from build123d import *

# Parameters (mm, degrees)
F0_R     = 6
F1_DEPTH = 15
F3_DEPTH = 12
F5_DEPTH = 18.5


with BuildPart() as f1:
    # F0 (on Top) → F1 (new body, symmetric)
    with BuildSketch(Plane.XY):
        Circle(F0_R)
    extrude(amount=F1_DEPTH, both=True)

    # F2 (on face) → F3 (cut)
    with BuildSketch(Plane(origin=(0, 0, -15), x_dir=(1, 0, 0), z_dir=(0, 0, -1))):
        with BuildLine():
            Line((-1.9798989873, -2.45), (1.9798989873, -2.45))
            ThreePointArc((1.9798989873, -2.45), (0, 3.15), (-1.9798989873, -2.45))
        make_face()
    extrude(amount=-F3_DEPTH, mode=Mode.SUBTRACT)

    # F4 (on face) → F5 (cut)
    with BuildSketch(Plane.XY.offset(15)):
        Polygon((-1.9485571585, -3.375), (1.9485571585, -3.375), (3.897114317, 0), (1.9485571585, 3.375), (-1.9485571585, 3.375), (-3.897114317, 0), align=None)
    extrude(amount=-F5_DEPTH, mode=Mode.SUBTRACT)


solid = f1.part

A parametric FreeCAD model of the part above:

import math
import FreeCAD as App
import Part
import Sketcher
from FreeCAD import Vector
Q = App.Units.Quantity


def add_polygon(sketch, points):
    """Adds a closed chain of lines whose ends are joined by coincident constraints."""
    first, n = sketch.GeometryCount, len(points)
    for a, b in zip(points, points[1:] + points[:1]):
        sketch.addGeometry(Part.LineSegment(App.Vector(*a, 0), App.Vector(*b, 0)), False)
    for i in range(n):
        sketch.addConstraint(Sketcher.Constraint("Coincident", first + i, 2, first + (i + 1) % n, 1))

doc = App.newDocument("Part")
body = doc.addObject("PartDesign::Body", "Body")

# Sketch on XY plane
sketch1 = body.newObject("Sketcher::SketchObject", "Sketch")
sketch1.AttachmentSupport = (doc.getObject("XY_Plane"), [""])
sketch1.MapMode = "FlatFace"
sketch1.addGeometry(Part.Circle(Vector(0, 0, 0), Vector(0, 0, 1), 6), False)
sketch1.addConstraint(Sketcher.Constraint("Coincident", 0, 3, -1, 1))
sketch1.addConstraint(Sketcher.Constraint("Diameter", 0, 12.0))
pad1 = body.newObject("PartDesign::Pad", "Pad")
pad1.Profile = sketch1
pad1.Length = 30
pad1.Midplane = True

# Sketch on XY plane
sketch2 = body.newObject("Sketcher::SketchObject", "Sketch001")
sketch2.AttachmentSupport = (doc.getObject("XY_Plane"), [""])
sketch2.MapMode = "FlatFace"
sketch2.AttachmentOffset = App.Placement(Vector(0, 0, -15), App.Rotation())
sketch2.addGeometry(Part.LineSegment(Vector(-1.979899, 2.45, 0), Vector(1.979899, 2.45, 0)), False)
sketch2.addGeometry(Part.ArcOfCircle(Part.Circle(Vector(0, 0, 0), Vector(0, 0, 1), 3.15), math.radians(128.942441), math.radians(411.057559)), False)
sketch2.addConstraint(Sketcher.Constraint("Coincident", 0, 1, 1, 1))
sketch2.addConstraint(Sketcher.Constraint("Coincident", 1, 2, 0, 2))
sketch2.addConstraint(Sketcher.Constraint("Horizontal", 0))
sketch2.addConstraint(Sketcher.Constraint("Coincident", 1, 3, -1, 1))
sketch2.addConstraint(Sketcher.Constraint("Radius", 1, 3.15))
sketch2.addConstraint(Sketcher.Constraint("DistanceY", -1, 1, 0, 1, 2.45))
pocket1 = body.newObject("PartDesign::Pocket", "Pocket")
pocket1.Profile = sketch2
pocket1.Length = 12
pocket1.Reversed = True

# Sketch on XY plane
sketch3 = body.newObject("Sketcher::SketchObject", "Sketch002")
sketch3.AttachmentSupport = (doc.getObject("XY_Plane"), [""])
sketch3.MapMode = "FlatFace"
sketch3.AttachmentOffset = App.Placement(Vector(0, 0, 15), App.Rotation())
add_polygon(sketch3, [(-1.948557, -3.375), (1.948557, -3.375), (3.897114, 0), (1.948557, 3.375), (-1.948557, 3.375), (-3.897114, 0)])  # lines 0-5
sketch3.addConstraint(Sketcher.Constraint("Horizontal", 0))
sketch3.addConstraint(Sketcher.Constraint("Horizontal", 3))
sketch3.addConstraint(Sketcher.Constraint("Symmetric", 0, 2, 3, 2, -1, 1))
sketch3.addConstraint(Sketcher.Constraint("Symmetric", 1, 2, 4, 2, -1, 1))
sketch3.addConstraint(Sketcher.Constraint("PointOnObject", 1, 2, -1))
sketch3.addConstraint(Sketcher.Constraint("Parallel", 2, 5))
sketch3.addConstraint(Sketcher.Constraint("Vertical", 0, 2, 2, 2))
sketch3.addConstraint(Sketcher.Constraint("Angle", 1, Q("60 deg")))
sketch3.addConstraint(Sketcher.Constraint("DistanceY", 0, 2, 2, 2, 6.75))
sketch3.addConstraint(Sketcher.Constraint("DistanceX", 0, 1, 0, 2, 3.897114))
pocket2 = body.newObject("PartDesign::Pocket", "Pocket001")
pocket2.Profile = sketch3
pocket2.Length = 18.5

doc.recompute()
